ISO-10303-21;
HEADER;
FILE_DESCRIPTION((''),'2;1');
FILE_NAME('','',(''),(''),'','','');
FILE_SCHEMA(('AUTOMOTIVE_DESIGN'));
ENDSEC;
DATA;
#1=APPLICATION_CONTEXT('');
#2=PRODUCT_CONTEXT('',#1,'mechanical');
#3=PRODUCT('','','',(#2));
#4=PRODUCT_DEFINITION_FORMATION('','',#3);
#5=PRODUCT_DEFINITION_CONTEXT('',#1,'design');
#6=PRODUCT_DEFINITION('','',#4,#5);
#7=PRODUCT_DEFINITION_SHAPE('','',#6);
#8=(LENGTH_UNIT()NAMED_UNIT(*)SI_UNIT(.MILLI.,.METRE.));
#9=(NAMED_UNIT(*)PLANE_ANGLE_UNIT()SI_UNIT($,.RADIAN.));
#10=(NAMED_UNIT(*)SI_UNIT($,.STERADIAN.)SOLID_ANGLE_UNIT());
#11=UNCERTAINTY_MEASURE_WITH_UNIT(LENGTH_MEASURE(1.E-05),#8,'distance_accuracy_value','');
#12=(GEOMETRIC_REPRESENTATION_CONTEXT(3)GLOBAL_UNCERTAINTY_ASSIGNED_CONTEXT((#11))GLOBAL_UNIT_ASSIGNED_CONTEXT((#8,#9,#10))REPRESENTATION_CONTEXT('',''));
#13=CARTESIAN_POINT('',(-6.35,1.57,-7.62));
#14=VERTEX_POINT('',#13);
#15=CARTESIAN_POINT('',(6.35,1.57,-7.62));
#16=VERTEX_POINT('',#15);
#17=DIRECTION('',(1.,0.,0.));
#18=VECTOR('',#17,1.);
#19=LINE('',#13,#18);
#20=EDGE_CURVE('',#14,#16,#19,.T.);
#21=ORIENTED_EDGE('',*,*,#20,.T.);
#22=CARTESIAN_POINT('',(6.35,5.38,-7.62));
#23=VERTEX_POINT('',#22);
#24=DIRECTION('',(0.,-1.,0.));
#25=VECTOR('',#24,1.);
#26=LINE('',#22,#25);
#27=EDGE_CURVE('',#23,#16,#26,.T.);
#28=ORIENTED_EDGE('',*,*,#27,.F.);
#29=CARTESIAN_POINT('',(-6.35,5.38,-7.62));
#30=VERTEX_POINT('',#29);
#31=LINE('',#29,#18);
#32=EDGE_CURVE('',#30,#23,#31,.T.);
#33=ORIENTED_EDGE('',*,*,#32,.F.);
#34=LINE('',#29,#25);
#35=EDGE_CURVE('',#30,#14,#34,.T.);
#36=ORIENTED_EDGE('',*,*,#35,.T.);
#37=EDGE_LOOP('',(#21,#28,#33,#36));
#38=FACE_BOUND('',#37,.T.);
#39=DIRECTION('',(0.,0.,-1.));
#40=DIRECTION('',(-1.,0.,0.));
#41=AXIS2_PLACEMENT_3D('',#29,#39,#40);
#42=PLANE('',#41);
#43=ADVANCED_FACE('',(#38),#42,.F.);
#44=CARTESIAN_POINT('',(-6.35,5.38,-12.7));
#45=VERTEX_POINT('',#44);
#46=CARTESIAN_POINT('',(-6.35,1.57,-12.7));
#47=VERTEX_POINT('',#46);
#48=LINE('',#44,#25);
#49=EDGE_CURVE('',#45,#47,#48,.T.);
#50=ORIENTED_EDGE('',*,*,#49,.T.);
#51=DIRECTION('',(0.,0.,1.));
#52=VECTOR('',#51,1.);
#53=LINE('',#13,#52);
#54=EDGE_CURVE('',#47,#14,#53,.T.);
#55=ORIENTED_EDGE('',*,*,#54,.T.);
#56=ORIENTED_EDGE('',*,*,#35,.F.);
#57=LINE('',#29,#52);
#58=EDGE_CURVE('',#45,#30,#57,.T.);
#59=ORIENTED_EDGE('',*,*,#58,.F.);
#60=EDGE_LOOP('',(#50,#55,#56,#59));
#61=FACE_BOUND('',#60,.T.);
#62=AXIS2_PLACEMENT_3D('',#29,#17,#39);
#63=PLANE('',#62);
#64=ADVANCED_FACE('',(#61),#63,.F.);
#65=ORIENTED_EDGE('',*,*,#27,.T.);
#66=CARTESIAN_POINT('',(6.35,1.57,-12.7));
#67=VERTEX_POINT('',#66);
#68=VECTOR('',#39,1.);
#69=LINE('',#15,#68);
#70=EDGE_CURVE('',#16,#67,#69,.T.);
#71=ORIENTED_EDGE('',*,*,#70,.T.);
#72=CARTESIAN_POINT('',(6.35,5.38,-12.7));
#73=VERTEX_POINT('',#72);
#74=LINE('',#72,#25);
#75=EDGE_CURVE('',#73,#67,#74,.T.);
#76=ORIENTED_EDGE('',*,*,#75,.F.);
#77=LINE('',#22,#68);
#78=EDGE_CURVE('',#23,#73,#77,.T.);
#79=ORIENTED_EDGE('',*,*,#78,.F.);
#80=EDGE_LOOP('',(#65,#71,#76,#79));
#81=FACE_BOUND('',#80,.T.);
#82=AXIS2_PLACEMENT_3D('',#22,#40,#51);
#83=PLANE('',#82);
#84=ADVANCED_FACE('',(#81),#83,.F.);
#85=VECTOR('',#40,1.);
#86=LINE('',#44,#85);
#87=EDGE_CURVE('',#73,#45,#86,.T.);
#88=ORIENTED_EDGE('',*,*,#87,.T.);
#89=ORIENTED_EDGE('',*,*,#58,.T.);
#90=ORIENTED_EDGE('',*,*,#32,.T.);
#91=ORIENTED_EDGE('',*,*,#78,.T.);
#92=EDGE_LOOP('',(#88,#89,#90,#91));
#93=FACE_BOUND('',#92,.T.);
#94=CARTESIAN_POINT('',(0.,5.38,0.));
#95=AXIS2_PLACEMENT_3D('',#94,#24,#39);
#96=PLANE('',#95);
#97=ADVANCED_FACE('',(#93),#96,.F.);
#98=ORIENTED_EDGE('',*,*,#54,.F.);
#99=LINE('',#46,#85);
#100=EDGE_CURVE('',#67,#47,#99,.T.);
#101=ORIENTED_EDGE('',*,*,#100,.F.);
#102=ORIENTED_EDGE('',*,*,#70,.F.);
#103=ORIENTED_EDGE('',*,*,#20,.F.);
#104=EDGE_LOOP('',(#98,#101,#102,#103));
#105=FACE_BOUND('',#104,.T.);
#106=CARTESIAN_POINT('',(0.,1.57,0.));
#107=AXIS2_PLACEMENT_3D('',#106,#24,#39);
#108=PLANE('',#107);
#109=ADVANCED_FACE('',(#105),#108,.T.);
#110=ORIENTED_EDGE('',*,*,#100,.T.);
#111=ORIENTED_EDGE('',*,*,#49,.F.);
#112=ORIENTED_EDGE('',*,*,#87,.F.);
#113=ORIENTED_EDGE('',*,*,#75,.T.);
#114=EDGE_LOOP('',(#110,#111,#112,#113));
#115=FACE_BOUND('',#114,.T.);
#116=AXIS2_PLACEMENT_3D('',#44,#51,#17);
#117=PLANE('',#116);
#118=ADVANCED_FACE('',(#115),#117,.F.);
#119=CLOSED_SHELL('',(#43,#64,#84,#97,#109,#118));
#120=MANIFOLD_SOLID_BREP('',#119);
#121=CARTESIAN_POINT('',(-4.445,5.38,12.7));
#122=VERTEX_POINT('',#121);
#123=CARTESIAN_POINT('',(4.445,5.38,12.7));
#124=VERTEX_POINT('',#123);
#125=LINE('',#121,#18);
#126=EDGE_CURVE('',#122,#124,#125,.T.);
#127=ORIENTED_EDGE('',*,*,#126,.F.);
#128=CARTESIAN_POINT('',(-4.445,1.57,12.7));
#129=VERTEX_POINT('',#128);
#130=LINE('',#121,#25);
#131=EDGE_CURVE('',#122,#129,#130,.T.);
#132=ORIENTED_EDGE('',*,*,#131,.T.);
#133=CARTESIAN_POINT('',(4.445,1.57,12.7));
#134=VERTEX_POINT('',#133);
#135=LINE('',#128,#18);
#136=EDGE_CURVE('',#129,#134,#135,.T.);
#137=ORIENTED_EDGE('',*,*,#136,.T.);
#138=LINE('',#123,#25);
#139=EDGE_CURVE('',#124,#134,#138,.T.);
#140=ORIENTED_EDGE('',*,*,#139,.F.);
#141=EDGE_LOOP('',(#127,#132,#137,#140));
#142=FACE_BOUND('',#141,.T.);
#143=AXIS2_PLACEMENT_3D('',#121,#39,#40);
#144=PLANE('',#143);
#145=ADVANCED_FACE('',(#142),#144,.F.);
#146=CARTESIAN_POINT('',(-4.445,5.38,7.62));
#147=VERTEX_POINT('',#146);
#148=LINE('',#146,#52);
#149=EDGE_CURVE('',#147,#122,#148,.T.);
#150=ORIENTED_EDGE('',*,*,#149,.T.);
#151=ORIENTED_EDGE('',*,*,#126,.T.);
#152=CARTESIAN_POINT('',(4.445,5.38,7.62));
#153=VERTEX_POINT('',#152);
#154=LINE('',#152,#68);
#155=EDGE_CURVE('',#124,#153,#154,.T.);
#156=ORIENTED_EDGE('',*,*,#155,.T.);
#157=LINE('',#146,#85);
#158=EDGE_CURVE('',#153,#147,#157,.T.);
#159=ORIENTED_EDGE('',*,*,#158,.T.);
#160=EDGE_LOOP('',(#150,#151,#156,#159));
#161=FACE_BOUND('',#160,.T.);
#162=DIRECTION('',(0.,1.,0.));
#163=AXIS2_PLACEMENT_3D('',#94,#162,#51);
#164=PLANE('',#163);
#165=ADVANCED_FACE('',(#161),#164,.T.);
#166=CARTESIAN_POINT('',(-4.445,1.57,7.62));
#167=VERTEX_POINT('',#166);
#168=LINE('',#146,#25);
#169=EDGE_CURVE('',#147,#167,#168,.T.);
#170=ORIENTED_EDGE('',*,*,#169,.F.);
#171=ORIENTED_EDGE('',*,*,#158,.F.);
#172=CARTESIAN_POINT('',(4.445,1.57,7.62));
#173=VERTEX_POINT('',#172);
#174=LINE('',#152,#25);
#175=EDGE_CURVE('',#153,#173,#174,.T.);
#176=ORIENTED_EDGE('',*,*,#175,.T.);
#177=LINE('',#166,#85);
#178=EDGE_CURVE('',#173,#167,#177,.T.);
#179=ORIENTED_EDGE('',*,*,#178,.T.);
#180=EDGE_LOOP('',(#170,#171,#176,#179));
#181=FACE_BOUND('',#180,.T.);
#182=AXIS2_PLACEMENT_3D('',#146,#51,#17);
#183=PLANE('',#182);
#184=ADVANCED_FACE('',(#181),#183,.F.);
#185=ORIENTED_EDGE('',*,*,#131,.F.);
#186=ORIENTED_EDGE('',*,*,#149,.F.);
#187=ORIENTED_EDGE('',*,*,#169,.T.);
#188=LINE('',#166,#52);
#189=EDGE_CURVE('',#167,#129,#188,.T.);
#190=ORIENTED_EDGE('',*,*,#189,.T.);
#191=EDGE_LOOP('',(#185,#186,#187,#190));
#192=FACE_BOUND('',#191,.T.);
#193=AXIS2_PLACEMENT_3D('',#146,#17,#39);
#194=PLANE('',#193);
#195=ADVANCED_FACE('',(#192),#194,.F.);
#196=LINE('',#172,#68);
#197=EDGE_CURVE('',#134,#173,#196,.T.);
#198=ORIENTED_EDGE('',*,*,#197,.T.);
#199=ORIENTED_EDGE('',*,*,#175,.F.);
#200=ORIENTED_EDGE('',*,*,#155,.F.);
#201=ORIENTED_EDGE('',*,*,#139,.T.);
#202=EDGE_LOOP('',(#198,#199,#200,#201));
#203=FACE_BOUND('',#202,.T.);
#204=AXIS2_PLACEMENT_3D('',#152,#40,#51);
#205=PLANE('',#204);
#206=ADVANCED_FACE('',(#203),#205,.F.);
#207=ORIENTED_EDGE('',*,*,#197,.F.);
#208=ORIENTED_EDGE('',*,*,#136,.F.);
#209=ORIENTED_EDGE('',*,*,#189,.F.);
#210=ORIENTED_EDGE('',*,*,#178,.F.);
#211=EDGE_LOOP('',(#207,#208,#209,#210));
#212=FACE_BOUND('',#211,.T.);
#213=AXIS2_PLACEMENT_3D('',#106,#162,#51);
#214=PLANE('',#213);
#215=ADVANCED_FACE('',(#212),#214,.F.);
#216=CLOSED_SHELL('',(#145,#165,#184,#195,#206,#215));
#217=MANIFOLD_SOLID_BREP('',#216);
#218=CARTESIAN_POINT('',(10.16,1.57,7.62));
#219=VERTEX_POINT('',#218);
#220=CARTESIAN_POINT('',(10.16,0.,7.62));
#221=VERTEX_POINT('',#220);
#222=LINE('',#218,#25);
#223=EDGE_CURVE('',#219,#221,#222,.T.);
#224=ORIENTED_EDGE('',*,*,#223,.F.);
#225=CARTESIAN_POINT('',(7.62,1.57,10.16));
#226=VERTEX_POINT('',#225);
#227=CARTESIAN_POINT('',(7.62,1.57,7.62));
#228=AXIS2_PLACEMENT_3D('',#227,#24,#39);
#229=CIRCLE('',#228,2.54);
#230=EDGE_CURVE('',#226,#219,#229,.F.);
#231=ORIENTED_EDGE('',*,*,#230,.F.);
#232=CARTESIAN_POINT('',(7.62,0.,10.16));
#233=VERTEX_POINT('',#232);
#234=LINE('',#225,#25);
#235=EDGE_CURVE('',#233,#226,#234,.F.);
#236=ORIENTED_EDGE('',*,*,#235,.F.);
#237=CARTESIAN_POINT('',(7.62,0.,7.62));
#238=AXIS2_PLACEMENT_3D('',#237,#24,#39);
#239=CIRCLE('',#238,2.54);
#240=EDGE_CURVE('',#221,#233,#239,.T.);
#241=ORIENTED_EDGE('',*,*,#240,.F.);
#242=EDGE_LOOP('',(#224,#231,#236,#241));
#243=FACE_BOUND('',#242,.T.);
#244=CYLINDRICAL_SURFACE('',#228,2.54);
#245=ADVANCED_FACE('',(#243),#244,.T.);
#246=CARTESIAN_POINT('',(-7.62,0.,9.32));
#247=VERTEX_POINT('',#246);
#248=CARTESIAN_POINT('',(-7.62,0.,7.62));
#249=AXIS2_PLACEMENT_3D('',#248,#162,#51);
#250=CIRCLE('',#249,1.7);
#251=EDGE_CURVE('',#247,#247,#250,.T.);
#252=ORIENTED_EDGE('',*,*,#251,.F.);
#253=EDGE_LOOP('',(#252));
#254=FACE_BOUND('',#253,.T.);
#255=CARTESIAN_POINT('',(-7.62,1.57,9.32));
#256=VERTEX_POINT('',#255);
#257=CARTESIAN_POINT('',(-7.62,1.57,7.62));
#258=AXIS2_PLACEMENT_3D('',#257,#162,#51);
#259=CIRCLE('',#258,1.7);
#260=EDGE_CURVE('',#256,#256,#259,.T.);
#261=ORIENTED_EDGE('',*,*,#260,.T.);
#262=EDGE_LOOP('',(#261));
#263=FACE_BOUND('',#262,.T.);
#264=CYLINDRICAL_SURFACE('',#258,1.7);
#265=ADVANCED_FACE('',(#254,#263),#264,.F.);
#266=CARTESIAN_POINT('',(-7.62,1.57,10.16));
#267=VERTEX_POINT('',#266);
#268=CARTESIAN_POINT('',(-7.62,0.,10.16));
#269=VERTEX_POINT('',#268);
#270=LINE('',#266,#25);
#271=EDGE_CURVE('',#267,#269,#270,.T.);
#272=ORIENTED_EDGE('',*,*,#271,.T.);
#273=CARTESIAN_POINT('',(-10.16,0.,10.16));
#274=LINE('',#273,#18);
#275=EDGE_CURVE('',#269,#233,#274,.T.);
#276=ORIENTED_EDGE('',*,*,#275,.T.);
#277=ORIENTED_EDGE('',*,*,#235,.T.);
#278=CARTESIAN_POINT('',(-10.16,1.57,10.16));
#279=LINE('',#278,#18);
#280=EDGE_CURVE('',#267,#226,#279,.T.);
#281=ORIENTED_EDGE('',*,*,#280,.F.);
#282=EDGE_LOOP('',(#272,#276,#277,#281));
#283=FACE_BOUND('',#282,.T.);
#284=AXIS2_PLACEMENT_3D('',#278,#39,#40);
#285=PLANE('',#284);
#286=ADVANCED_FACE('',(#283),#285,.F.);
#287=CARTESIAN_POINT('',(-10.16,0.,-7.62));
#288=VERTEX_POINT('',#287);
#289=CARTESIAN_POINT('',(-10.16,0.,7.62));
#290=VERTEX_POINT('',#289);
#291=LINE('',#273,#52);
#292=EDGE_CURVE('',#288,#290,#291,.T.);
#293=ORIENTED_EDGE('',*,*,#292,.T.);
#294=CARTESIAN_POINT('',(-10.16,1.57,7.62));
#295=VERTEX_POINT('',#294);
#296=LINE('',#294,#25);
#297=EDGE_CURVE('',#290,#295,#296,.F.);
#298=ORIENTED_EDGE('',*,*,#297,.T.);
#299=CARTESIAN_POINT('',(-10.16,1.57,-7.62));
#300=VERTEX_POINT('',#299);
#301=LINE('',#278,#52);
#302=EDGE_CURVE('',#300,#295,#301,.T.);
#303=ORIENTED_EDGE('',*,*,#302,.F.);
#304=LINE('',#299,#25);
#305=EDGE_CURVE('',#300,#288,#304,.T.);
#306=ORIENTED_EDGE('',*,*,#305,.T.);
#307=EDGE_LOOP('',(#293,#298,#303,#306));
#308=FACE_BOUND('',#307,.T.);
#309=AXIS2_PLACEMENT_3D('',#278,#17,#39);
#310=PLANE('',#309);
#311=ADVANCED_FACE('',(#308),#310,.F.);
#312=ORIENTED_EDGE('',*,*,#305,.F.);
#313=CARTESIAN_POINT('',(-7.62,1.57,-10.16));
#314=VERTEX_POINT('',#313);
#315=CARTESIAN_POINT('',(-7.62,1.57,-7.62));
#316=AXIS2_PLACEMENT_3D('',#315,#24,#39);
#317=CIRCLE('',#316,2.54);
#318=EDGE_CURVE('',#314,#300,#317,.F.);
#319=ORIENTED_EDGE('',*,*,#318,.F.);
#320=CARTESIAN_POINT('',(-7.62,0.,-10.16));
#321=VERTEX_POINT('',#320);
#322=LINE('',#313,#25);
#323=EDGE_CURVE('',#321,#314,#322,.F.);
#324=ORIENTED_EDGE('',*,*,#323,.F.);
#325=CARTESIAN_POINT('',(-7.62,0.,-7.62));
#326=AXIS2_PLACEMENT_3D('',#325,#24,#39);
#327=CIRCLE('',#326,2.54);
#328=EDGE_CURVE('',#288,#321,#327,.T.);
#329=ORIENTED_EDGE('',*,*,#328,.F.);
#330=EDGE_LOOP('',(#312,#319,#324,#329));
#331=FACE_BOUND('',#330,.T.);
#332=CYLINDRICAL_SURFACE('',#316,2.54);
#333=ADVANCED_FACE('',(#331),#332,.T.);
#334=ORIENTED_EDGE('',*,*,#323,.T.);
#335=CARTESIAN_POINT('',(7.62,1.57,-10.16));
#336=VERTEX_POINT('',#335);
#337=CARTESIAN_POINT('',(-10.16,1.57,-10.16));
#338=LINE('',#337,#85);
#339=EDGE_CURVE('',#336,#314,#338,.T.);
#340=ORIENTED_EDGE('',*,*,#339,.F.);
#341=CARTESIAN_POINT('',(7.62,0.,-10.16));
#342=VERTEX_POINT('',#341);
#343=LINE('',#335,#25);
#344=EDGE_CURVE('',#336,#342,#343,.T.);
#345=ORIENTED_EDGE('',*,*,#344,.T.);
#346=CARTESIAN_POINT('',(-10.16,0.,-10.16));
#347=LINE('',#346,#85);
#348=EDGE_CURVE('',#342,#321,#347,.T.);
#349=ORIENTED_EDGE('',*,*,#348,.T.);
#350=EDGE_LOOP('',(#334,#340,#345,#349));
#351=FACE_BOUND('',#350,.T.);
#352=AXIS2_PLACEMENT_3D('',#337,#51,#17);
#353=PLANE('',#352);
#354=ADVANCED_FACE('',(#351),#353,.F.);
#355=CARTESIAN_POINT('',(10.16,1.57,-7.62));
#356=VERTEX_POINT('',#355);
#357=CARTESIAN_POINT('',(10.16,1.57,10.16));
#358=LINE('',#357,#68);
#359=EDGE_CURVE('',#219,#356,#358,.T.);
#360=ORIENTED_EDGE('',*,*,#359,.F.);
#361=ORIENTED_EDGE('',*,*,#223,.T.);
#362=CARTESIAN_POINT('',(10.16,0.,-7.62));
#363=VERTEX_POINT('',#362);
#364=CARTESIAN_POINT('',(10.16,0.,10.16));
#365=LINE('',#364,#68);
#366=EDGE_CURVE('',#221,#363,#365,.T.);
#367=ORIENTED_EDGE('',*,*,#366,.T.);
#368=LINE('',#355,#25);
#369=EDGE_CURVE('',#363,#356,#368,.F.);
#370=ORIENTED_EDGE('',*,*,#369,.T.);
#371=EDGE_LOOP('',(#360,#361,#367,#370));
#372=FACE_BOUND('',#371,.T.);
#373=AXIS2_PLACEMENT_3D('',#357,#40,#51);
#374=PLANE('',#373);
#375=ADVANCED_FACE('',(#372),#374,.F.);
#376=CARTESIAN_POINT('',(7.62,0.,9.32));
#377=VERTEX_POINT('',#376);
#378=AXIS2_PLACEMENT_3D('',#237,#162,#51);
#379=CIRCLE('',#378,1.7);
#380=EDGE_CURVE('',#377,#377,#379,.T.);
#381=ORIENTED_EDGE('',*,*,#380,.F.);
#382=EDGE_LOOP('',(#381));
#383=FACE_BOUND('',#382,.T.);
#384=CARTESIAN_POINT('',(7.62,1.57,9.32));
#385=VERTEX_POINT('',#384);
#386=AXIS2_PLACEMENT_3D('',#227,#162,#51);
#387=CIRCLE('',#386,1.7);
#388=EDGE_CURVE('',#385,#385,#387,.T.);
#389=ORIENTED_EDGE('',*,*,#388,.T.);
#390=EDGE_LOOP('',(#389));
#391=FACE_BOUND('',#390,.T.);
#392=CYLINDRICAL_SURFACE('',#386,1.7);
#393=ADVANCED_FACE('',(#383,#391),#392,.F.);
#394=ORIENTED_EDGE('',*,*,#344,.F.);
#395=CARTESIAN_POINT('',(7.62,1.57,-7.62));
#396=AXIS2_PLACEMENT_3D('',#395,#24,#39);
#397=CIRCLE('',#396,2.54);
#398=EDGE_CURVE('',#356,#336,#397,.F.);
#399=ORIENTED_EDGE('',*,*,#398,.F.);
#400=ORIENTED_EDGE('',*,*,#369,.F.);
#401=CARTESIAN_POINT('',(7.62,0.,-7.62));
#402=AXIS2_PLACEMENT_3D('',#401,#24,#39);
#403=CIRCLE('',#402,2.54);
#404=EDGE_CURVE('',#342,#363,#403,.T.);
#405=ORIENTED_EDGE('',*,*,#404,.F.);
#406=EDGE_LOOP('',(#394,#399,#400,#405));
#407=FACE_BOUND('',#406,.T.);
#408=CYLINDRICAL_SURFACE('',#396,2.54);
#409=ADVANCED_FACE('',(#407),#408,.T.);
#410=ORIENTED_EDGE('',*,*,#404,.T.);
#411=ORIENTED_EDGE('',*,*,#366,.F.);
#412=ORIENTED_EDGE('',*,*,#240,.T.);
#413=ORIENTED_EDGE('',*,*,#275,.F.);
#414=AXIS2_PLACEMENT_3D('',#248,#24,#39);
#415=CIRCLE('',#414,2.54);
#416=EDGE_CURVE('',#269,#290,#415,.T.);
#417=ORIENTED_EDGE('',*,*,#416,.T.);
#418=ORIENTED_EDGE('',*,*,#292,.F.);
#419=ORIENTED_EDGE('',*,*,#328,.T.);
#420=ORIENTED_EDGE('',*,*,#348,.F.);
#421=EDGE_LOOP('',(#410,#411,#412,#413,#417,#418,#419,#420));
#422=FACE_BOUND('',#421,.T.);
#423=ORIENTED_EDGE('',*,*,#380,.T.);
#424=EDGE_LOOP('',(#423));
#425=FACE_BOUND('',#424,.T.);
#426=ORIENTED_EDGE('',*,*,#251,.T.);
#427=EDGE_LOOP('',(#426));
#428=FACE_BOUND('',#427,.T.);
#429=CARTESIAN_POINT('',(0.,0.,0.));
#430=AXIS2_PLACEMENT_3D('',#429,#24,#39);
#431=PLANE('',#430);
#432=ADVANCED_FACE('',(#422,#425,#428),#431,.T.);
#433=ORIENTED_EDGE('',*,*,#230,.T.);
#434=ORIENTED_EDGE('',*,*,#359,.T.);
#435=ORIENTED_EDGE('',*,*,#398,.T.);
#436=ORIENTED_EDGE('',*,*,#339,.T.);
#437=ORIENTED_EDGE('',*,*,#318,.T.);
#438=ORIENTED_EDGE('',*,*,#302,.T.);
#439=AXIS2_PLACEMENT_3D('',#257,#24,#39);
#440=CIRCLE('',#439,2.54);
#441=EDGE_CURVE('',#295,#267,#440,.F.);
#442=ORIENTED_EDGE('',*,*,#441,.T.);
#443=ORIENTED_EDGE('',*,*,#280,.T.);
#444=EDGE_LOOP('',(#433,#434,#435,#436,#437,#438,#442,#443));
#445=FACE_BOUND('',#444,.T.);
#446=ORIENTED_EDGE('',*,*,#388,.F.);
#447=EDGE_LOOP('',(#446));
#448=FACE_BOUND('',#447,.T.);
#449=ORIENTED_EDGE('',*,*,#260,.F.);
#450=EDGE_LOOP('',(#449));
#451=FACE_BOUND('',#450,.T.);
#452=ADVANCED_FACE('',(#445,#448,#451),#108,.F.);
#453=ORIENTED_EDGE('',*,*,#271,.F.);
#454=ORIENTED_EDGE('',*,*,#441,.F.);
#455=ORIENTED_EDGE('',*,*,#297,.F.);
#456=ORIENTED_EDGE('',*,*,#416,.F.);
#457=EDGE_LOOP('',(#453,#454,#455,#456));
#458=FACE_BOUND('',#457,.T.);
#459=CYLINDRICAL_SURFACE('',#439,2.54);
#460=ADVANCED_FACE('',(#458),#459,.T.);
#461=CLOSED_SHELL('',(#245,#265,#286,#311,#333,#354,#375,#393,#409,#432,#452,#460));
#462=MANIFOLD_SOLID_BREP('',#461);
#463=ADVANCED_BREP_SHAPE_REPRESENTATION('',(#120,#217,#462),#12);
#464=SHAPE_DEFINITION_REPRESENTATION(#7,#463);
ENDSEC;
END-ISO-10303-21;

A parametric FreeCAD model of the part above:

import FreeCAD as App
import Part
import Sketcher

V = App.Vector
Q = App.Units.Quantity


def edges_at(feature, points):
    """Names of the edges that pass closest to the given points."""
    edges = feature.Shape.Edges
    near = lambda p: min(range(len(edges)), key=lambda i: edges[i].distToShape(Part.Vertex(*p))[0])
    return sorted({f"Edge{near(p) + 1}" for p in points})


def add_polygon(sketch, points):
    """Adds a closed chain of lines whose ends are joined by coincident constraints."""
    first, n = sketch.GeometryCount, len(points)
    for a, b in zip(points, points[1:] + points[:1]):
        sketch.addGeometry(Part.LineSegment(App.Vector(*a, 0), App.Vector(*b, 0)), False)
    for i in range(n):
        sketch.addConstraint(Sketcher.Constraint("Coincident", first + i, 2, first + (i + 1) % n, 1))

doc = App.newDocument("Part")
body = doc.addObject("PartDesign::Body", "Body")

# Sketch on XZ plane
sketch1 = doc.addObject("Sketcher::SketchObject", "Sketch")
body.addObject(sketch1)
sketch1.AttachmentSupport = (doc.XZ_Plane, [""])
sketch1.MapMode = "FlatFace"
add_polygon(sketch1, [(-10, -10), (-10, 10), (10, 10), (10, -10)])  # lines 0-3
sketch1.addConstraint(Sketcher.Constraint("Vertical", 0))
sketch1.addConstraint(Sketcher.Constraint("Horizontal", 1))
sketch1.addConstraint(Sketcher.Constraint("Vertical", 2))
sketch1.addConstraint(Sketcher.Constraint("Horizontal", 3))
sketch1.addConstraint(Sketcher.Constraint("Symmetric", 0, 2, 2, 2, -1, 1))
sketch1.addConstraint(Sketcher.Constraint("Equal", 3, 0))
sketch1.addConstraint(Sketcher.Constraint("DistanceX", 1, 1, 1, 2, Q("0.8 in")))
pad1 = doc.addObject("PartDesign::Pad", "Pad")
body.addObject(pad1)
pad1.Profile = sketch1
pad1.Length = 1.57
pad1.Reversed = True
doc.recompute()

fillet = doc.addObject("PartDesign::Fillet", "Fillet")
body.addObject(fillet)
fillet.Base = (pad1, edges_at(pad1, [
    (10.16, 0.785, 10.16),
    (-10.16, 0.785, 10.16),
    (-10.16, 0.785, -10.16),
    (10.16, 0.785, -10.16),
]))
fillet.Radius = Q("0.1 in")

# Sketch on XZ plane
sketch2 = doc.addObject("Sketcher::SketchObject", "Sketch001")
body.addObject(sketch2)
sketch2.AttachmentSupport = (doc.XZ_Plane, [""])
sketch2.MapMode = "FlatFace"
sketch2.AttachmentOffset = App.Placement(V(0, 0, -1.57), App.Rotation())
sketch2.addGeometry(Part.Circle(V(-7.6, 7.6, 0), V(0, 0, 1), 1.7), False)
sketch2.addGeometry(Part.Circle(V(7.6, 7.6, 0), V(0, 0, 1), 1.7), False)
sketch2.addConstraint(Sketcher.Constraint("Equal", 0, 1))
sketch2.addConstraint(Sketcher.Constraint("Symmetric", 0, 3, 1, 3, -2))
sketch2.addConstraint(Sketcher.Constraint("DistanceX", 0, 3, -1, 1, Q("0.3 in")))
sketch2.addConstraint(Sketcher.Constraint("DistanceY", -1, 1, 0, 3, Q("0.3 in")))
sketch2.addConstraint(Sketcher.Constraint("Diameter", 0, Q("3.4 mm")))
doc.recompute()
hole = doc.addObject("PartDesign::Hole", "Hole")
body.addObject(hole)
hole.Profile = sketch2
hole.ThreadType = "None"
hole.Diameter = 3.4
hole.DepthType = "ThroughAll"
hole.Reversed = True
body2 = doc.addObject("PartDesign::Body", "Body001")

# Sketch on XZ plane
sketch3 = doc.addObject("Sketcher::SketchObject", "Sketch002")
body2.addObject(sketch3)
sketch3.AttachmentSupport = (doc.getObject("XZ_Plane001"), [""])
sketch3.MapMode = "FlatFace"
sketch3.AttachmentOffset = App.Placement(V(0, 0, -1.57), App.Rotation())
add_polygon(sketch3, [(-4, 8), (-4, 13), (4, 13), (4, 8)])  # lines 0-3
sketch3.addConstraint(Sketcher.Constraint("Vertical", 0))
sketch3.addConstraint(Sketcher.Constraint("Horizontal", 1))
sketch3.addConstraint(Sketcher.Constraint("Vertical", 2))
sketch3.addConstraint(Sketcher.Constraint("Horizontal", 3))
sketch3.addConstraint(Sketcher.Constraint("DistanceY", 0, 1, 0, 2, Q("0.2 in")))
sketch3.addConstraint(Sketcher.Constraint("DistanceX", 1, 1, 1, 2, Q("0.35 in")))
sketch3.addConstraint(Sketcher.Constraint("DistanceY", -1, 1, 0, 2, Q("0.5 in")))
sketch3.addConstraint(Sketcher.Constraint("DistanceX", 0, 2, -1, 1, Q("0.175 in")))
pad2 = doc.addObject("PartDesign::Pad", "Pad001")
body2.addObject(pad2)
pad2.Profile = sketch3
pad2.Length = Q("0.15 in")
pad2.Reversed = True
body3 = doc.addObject("PartDesign::Body", "Body002")

# Sketch on XZ plane
sketch4 = doc.addObject("Sketcher::SketchObject", "Sketch003")
body3.addObject(sketch4)
sketch4.AttachmentSupport = (doc.getObject("XZ_Plane002"), [""])
sketch4.MapMode = "FlatFace"
sketch4.AttachmentOffset = App.Placement(V(0, 0, -1.57), App.Rotation())
add_polygon(sketch4, [(-6, -13), (-6, -8), (6, -8), (6, -13)])  # lines 0-3
sketch4.addConstraint(Sketcher.Constraint("Vertical", 0))
sketch4.addConstraint(Sketcher.Constraint("Horizontal", 1))
sketch4.addConstraint(Sketcher.Constraint("Vertical", 2))
sketch4.addConstraint(Sketcher.Constraint("Horizontal", 3))
sketch4.addConstraint(Sketcher.Constraint("DistanceX", 1, 1, 1, 2, Q("0.5 in")))
sketch4.addConstraint(Sketcher.Constraint("DistanceY", 0, 1, 0, 2, Q("0.2 in")))
sketch4.addConstraint(Sketcher.Constraint("DistanceY", 0, 2, -1, 1, Q("0.3 in")))
sketch4.addConstraint(Sketcher.Constraint("DistanceX", 0, 2, -1, 1, Q("0.25 in")))
pad3 = doc.addObject("PartDesign::Pad", "Pad002")
body3.addObject(pad3)
pad3.Profile = sketch4
pad3.Length = Q("0.15 in")
pad3.Reversed = True

doc.recompute()
